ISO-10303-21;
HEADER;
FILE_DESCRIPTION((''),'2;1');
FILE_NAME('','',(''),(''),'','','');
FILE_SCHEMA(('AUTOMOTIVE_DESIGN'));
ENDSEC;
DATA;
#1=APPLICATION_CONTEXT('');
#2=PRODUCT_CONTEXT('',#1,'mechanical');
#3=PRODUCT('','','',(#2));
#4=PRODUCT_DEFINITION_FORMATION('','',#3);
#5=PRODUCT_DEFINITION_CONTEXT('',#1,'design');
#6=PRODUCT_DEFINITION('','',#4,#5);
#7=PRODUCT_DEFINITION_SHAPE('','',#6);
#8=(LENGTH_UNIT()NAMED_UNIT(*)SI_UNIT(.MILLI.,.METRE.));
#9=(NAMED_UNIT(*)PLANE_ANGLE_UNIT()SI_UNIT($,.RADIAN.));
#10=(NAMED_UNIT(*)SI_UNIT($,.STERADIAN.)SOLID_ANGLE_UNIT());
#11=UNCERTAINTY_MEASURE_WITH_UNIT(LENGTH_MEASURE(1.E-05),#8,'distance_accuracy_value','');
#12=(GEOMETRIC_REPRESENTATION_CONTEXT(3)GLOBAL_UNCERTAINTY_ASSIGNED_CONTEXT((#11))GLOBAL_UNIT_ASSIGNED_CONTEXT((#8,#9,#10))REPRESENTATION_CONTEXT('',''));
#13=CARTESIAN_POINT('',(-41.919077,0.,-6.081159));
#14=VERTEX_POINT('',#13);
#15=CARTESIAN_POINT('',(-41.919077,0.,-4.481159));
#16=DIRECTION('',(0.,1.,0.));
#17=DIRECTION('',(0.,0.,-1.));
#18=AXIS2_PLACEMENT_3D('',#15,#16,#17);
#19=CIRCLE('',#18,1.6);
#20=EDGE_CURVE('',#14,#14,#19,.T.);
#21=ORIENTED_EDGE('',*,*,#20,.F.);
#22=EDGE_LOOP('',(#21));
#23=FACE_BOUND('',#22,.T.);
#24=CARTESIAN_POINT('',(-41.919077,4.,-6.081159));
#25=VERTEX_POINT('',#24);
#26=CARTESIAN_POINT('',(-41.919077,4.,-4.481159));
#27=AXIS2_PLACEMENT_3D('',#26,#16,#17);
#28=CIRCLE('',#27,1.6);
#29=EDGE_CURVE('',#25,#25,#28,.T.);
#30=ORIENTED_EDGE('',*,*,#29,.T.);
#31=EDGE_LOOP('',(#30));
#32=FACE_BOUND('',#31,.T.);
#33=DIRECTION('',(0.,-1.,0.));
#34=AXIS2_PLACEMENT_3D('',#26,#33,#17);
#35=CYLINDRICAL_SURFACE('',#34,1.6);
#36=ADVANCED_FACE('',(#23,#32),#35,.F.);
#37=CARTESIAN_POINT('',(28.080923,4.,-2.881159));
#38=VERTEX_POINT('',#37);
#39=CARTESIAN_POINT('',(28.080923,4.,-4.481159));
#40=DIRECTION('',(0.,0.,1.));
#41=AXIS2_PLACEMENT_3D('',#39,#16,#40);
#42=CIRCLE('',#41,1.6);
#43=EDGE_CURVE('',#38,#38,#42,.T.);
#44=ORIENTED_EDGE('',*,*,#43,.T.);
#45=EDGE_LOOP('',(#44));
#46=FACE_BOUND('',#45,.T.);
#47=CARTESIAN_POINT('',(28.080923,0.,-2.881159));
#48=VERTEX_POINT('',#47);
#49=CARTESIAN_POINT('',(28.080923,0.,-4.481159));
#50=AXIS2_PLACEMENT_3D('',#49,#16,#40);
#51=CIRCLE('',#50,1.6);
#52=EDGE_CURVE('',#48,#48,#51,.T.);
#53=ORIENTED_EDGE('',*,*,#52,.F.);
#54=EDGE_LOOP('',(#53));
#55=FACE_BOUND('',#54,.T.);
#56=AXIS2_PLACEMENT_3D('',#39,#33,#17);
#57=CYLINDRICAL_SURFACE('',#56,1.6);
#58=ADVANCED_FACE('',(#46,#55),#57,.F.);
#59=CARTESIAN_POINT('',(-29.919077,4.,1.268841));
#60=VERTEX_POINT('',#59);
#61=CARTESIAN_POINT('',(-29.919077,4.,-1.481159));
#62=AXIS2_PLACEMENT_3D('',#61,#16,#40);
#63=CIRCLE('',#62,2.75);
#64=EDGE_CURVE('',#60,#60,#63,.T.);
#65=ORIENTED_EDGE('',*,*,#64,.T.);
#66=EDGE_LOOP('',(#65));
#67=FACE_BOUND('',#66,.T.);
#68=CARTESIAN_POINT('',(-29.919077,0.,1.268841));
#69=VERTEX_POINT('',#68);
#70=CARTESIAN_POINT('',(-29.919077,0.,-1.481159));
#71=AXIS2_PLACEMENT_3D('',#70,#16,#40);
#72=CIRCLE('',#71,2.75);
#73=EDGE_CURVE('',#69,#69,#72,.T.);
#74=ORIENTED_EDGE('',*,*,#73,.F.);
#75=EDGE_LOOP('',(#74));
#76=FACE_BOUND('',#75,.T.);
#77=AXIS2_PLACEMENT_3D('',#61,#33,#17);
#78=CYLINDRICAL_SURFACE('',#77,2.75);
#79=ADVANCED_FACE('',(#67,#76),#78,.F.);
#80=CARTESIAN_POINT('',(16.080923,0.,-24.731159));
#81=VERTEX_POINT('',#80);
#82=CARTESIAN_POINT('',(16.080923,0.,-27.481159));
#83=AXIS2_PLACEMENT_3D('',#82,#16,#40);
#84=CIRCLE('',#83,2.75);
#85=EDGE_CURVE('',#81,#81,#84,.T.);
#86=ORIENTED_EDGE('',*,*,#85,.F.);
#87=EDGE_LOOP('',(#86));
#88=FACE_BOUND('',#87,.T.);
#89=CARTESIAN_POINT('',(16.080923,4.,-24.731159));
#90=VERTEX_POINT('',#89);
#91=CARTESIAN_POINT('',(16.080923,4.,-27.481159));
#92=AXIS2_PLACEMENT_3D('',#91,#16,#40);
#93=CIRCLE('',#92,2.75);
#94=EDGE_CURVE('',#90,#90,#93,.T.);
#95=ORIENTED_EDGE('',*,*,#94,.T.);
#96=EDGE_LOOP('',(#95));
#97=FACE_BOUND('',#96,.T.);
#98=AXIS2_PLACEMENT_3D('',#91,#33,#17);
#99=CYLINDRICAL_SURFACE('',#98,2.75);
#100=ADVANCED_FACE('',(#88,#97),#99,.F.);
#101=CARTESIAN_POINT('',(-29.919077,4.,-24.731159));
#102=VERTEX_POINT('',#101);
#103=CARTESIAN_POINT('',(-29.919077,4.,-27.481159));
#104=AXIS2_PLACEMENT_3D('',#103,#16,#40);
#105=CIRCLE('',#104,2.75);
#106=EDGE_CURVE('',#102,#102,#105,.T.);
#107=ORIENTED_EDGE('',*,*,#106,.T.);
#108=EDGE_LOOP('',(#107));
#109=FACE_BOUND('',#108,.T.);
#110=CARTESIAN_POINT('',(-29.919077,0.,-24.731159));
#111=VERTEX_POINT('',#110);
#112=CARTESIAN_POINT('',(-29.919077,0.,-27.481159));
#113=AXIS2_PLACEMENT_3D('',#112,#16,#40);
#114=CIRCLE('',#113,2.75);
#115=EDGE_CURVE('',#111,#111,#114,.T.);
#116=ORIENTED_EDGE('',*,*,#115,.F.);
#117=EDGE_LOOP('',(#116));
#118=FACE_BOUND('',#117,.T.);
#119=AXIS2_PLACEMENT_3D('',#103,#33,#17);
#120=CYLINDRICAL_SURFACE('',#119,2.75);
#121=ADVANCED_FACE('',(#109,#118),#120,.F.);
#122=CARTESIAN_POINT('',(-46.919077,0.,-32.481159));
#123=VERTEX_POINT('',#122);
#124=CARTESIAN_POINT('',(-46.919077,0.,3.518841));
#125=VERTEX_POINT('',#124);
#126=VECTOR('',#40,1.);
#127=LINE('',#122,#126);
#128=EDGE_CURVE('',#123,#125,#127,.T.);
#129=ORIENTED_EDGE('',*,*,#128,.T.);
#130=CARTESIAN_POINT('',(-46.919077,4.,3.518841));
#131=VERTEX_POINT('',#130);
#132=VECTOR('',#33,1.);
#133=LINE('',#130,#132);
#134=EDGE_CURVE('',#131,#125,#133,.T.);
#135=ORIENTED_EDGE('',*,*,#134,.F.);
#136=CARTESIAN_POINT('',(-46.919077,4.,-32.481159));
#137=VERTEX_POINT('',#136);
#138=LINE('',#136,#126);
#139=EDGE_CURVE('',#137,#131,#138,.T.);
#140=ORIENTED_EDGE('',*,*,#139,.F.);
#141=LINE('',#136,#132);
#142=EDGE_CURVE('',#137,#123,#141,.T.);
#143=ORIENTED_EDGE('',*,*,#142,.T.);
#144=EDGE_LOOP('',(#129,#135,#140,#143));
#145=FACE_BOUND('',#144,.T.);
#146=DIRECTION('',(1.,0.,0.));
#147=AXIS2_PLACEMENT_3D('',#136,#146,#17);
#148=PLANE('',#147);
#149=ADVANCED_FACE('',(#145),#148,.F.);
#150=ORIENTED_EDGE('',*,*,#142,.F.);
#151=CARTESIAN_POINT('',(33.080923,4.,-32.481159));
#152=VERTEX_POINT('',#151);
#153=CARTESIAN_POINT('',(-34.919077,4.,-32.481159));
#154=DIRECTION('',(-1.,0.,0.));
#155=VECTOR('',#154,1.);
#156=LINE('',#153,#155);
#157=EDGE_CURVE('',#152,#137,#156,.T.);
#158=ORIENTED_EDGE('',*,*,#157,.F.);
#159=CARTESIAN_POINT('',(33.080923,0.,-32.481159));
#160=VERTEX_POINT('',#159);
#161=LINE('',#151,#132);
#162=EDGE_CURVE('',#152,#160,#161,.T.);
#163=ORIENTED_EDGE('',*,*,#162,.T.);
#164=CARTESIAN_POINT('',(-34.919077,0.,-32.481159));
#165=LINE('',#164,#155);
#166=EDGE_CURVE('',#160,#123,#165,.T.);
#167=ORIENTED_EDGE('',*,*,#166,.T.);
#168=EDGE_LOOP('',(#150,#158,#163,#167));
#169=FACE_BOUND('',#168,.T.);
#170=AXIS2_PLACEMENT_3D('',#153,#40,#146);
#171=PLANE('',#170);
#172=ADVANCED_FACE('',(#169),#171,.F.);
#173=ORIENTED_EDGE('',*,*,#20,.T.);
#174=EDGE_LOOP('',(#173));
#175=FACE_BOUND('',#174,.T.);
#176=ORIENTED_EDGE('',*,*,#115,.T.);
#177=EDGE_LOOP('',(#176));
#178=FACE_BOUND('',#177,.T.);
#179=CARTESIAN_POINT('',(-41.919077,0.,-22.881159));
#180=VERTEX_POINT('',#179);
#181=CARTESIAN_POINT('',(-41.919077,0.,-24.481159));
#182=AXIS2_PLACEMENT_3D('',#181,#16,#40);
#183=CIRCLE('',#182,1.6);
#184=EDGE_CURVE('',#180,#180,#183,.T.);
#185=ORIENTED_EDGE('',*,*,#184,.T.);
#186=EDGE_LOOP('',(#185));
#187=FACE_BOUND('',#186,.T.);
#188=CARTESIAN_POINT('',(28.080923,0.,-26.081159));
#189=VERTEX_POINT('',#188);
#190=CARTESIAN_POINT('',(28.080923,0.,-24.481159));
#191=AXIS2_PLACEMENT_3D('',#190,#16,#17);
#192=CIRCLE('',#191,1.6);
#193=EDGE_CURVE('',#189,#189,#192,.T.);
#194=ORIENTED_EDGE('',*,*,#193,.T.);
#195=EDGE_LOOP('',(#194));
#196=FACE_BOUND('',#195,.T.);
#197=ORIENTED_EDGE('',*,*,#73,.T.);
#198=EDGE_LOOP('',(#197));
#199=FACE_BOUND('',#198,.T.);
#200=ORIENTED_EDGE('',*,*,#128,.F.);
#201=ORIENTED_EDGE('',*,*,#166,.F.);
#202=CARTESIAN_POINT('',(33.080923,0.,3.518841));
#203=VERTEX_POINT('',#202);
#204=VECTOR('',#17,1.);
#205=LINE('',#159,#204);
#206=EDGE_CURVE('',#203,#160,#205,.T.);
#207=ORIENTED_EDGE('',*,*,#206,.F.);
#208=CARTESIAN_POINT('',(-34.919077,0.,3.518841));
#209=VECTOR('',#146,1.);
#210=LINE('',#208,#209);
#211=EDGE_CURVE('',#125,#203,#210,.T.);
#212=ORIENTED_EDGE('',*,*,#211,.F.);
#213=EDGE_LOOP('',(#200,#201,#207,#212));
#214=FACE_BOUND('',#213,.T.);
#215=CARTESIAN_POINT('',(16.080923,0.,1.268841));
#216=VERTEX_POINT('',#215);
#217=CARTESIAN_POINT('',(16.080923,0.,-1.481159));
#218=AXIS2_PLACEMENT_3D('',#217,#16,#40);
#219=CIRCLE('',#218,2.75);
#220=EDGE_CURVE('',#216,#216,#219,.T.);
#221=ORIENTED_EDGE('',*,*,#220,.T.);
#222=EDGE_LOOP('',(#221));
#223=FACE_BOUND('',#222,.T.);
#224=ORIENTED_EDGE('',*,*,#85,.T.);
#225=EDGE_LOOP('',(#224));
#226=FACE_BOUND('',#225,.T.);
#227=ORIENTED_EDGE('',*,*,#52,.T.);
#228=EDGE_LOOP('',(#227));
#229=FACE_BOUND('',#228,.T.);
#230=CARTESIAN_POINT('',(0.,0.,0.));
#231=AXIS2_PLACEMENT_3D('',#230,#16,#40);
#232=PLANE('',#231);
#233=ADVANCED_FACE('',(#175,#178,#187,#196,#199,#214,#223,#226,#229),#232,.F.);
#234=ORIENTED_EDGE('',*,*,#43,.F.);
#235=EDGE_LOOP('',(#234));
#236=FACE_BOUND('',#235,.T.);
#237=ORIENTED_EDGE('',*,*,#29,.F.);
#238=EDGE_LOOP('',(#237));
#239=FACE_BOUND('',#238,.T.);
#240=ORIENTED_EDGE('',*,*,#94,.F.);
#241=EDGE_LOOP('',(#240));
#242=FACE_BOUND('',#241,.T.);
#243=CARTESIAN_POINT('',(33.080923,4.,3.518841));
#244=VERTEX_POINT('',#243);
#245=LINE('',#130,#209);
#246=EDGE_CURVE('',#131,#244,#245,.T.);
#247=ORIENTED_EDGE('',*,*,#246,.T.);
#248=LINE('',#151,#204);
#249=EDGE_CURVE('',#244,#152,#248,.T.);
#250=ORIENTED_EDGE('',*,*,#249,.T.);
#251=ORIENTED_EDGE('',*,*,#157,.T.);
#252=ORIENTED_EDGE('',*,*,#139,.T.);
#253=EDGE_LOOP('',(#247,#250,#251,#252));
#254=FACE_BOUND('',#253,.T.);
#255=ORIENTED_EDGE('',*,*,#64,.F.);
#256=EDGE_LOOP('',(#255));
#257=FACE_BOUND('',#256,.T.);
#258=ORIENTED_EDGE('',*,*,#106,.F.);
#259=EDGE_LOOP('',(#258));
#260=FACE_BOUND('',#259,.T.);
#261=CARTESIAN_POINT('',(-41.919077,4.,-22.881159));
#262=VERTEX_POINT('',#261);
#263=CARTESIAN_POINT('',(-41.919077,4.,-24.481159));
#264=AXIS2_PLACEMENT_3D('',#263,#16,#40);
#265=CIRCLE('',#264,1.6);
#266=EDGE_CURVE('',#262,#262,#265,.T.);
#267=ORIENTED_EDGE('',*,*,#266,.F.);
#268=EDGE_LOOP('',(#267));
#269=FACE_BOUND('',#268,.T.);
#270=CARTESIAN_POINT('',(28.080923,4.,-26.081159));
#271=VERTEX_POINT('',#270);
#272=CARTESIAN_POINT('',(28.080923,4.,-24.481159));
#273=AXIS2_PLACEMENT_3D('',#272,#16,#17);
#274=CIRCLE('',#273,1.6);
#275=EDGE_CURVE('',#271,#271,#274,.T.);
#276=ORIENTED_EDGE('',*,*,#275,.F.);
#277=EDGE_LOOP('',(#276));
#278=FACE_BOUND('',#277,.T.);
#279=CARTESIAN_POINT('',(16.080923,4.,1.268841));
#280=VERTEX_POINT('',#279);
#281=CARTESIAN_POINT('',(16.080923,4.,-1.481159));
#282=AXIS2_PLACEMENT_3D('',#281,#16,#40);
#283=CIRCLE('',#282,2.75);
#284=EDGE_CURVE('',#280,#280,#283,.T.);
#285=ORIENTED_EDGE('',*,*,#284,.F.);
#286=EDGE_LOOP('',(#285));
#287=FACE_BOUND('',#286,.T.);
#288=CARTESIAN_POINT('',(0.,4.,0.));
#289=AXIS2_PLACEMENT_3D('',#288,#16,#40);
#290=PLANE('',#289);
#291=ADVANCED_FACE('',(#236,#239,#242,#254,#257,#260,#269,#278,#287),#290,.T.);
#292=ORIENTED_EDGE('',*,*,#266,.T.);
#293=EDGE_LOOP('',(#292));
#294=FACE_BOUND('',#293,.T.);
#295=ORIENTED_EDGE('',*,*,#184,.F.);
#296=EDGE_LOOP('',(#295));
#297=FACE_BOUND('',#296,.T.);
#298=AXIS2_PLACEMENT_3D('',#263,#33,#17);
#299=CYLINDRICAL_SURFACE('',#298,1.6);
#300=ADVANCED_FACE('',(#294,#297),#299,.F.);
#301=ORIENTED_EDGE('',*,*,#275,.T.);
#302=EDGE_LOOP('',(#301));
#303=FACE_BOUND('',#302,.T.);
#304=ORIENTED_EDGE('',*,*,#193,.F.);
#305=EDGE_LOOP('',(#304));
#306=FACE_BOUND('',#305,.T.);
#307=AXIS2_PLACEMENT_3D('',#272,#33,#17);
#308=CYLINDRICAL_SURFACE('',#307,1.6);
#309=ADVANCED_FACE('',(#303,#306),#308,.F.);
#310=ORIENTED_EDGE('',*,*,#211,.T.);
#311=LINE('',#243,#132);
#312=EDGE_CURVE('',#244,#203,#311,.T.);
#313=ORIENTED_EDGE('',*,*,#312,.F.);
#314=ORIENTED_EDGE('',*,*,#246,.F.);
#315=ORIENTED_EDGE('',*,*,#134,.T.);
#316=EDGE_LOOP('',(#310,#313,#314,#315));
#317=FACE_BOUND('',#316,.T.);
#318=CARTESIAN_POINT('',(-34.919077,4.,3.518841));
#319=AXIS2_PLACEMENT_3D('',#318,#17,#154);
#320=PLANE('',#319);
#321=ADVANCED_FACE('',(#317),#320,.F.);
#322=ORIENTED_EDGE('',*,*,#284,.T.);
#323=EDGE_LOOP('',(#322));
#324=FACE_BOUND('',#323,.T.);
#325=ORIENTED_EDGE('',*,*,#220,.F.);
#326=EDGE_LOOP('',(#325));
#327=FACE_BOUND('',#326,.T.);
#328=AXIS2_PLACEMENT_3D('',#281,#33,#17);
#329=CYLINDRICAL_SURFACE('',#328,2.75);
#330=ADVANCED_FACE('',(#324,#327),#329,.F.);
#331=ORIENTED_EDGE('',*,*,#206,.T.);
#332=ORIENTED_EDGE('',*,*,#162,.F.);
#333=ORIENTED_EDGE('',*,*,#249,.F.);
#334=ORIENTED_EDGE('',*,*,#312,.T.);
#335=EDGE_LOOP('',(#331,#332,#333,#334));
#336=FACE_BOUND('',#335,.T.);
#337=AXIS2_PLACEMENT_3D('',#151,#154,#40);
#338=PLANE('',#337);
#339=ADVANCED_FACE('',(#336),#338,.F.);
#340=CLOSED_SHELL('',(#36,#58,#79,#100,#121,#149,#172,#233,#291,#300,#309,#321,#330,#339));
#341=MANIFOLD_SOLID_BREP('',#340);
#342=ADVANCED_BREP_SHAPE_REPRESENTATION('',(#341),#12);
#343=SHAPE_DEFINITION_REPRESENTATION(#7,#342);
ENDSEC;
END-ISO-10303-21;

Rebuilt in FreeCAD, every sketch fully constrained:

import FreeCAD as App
import Part
import Sketcher

V = App.Vector


def add_polygon(sketch, points):
    """Adds a closed chain of lines whose ends are joined by coincident constraints."""
    first, n = sketch.GeometryCount, len(points)
    for a, b in zip(points, points[1:] + points[:1]):
        sketch.addGeometry(Part.LineSegment(App.Vector(*a, 0), App.Vector(*b, 0)), False)
    for i in range(n):
        sketch.addConstraint(Sketcher.Constraint("Coincident", first + i, 2, first + (i + 1) % n, 1))

doc = App.newDocument("Part")
body = doc.addObject("PartDesign::Body", "Body")

# Sketch on XZ plane
sketch1 = body.newObject("Sketcher::SketchObject", "Sketch")
sketch1.AttachmentSupport = (doc.getObject("XZ_Plane"), [""])
sketch1.MapMode = "FlatFace"
add_polygon(sketch1, [(33.080923, -32.481159), (-46.919077, -32.481159), (-46.919077, 3.518841), (33.080923, 3.518841)])  # lines 0-3
sketch1.addGeometry(Part.Circle(V(16.080923, -1.481159, 0), V(0, 0, 1), 2.75), False)  # 4
sketch1.addGeometry(Part.Circle(V(28.080923, -4.481159, 0), V(0, 0, 1), 1.6), False)  # 5
sketch1.addGeometry(Part.Circle(V(-29.919077, -1.481159, 0), V(0, 0, 1), 2.75), False)  # 6
sketch1.addGeometry(Part.Circle(V(-41.919077, -4.481159, 0), V(0, 0, 1), 1.6), False)  # 7
sketch1.addGeometry(Part.Circle(V(28.080923, -24.481159, 0), V(0, 0, 1), 1.6), False)  # 8
sketch1.addGeometry(Part.Circle(V(16.080923, -27.481159, 0), V(0, 0, 1), 2.75), False)  # 9
sketch1.addGeometry(Part.Circle(V(-41.919077, -24.481159, 0), V(0, 0, 1), 1.6), False)  # 10
sketch1.addGeometry(Part.Circle(V(-29.919077, -27.481159, 0), V(0, 0, 1), 2.75), False)  # 11
sketch1.addConstraint([
    Sketcher.Constraint("Horizontal", 0),
    Sketcher.Constraint("Vertical", 1),
    Sketcher.Constraint("Horizontal", 2),
    Sketcher.Constraint("Vertical", 3),
    Sketcher.Constraint("Equal", 4, 6),
    Sketcher.Constraint("Equal", 5, 7),
    Sketcher.Constraint("Equal", 7, 8),
    Sketcher.Constraint("Equal", 6, 9),
    Sketcher.Constraint("Equal", 8, 10),
    Sketcher.Constraint("Equal", 9, 11),
    Sketcher.Constraint("Horizontal", 4, 3, 6, 3),
    Sketcher.Constraint("Horizontal", 5, 3, 7, 3),
    Sketcher.Constraint("Horizontal", 8, 3, 10, 3),
    Sketcher.Constraint("Horizontal", 9, 3, 11, 3),
    Sketcher.Constraint("Vertical", 5, 3, 8, 3),
    Sketcher.Constraint("Vertical", 4, 3, 9, 3),
    Sketcher.Constraint("Vertical", 7, 3, 10, 3),
    Sketcher.Constraint("Vertical", 6, 3, 11, 3),
    Sketcher.Constraint("Diameter", 4, 5.5),
    Sketcher.Constraint("Diameter", 5, 3.2),
    Sketcher.Constraint("DistanceX", 0, 2, 0, 1, 80.0),
    Sketcher.Constraint("DistanceY", 1, 1, 1, 2, 36.0),
    Sketcher.Constraint("DistanceX", 4, 3, 5, 3, 12.0),
    Sketcher.Constraint("DistanceY", 5, 3, 4, 3, 3.0),
    Sketcher.Constraint("DistanceX", 6, 3, 4, 3, 46.0),
    Sketcher.Constraint("DistanceX", 7, 3, 6, 3, 12.0),
    Sketcher.Constraint("DistanceY", 8, 3, 5, 3, 20.0),
    Sketcher.Constraint("DistanceY", 9, 3, 8, 3, 3.0),
    Sketcher.Constraint("DistanceX", 0, 2, 10, 3, 5.0),
    Sketcher.Constraint("DistanceY", 0, 2, 10, 3, 8.0),
    Sketcher.Constraint("DistanceY", 4, 3, -1, 1, 1.481159),
    Sketcher.Constraint("DistanceX", -1, 1, 4, 3, 16.080923),
])
pad1 = body.newObject("PartDesign::Pad", "Pad")
pad1.Profile = sketch1
pad1.Length = 4
pad1.Reversed = True

doc.recompute()
